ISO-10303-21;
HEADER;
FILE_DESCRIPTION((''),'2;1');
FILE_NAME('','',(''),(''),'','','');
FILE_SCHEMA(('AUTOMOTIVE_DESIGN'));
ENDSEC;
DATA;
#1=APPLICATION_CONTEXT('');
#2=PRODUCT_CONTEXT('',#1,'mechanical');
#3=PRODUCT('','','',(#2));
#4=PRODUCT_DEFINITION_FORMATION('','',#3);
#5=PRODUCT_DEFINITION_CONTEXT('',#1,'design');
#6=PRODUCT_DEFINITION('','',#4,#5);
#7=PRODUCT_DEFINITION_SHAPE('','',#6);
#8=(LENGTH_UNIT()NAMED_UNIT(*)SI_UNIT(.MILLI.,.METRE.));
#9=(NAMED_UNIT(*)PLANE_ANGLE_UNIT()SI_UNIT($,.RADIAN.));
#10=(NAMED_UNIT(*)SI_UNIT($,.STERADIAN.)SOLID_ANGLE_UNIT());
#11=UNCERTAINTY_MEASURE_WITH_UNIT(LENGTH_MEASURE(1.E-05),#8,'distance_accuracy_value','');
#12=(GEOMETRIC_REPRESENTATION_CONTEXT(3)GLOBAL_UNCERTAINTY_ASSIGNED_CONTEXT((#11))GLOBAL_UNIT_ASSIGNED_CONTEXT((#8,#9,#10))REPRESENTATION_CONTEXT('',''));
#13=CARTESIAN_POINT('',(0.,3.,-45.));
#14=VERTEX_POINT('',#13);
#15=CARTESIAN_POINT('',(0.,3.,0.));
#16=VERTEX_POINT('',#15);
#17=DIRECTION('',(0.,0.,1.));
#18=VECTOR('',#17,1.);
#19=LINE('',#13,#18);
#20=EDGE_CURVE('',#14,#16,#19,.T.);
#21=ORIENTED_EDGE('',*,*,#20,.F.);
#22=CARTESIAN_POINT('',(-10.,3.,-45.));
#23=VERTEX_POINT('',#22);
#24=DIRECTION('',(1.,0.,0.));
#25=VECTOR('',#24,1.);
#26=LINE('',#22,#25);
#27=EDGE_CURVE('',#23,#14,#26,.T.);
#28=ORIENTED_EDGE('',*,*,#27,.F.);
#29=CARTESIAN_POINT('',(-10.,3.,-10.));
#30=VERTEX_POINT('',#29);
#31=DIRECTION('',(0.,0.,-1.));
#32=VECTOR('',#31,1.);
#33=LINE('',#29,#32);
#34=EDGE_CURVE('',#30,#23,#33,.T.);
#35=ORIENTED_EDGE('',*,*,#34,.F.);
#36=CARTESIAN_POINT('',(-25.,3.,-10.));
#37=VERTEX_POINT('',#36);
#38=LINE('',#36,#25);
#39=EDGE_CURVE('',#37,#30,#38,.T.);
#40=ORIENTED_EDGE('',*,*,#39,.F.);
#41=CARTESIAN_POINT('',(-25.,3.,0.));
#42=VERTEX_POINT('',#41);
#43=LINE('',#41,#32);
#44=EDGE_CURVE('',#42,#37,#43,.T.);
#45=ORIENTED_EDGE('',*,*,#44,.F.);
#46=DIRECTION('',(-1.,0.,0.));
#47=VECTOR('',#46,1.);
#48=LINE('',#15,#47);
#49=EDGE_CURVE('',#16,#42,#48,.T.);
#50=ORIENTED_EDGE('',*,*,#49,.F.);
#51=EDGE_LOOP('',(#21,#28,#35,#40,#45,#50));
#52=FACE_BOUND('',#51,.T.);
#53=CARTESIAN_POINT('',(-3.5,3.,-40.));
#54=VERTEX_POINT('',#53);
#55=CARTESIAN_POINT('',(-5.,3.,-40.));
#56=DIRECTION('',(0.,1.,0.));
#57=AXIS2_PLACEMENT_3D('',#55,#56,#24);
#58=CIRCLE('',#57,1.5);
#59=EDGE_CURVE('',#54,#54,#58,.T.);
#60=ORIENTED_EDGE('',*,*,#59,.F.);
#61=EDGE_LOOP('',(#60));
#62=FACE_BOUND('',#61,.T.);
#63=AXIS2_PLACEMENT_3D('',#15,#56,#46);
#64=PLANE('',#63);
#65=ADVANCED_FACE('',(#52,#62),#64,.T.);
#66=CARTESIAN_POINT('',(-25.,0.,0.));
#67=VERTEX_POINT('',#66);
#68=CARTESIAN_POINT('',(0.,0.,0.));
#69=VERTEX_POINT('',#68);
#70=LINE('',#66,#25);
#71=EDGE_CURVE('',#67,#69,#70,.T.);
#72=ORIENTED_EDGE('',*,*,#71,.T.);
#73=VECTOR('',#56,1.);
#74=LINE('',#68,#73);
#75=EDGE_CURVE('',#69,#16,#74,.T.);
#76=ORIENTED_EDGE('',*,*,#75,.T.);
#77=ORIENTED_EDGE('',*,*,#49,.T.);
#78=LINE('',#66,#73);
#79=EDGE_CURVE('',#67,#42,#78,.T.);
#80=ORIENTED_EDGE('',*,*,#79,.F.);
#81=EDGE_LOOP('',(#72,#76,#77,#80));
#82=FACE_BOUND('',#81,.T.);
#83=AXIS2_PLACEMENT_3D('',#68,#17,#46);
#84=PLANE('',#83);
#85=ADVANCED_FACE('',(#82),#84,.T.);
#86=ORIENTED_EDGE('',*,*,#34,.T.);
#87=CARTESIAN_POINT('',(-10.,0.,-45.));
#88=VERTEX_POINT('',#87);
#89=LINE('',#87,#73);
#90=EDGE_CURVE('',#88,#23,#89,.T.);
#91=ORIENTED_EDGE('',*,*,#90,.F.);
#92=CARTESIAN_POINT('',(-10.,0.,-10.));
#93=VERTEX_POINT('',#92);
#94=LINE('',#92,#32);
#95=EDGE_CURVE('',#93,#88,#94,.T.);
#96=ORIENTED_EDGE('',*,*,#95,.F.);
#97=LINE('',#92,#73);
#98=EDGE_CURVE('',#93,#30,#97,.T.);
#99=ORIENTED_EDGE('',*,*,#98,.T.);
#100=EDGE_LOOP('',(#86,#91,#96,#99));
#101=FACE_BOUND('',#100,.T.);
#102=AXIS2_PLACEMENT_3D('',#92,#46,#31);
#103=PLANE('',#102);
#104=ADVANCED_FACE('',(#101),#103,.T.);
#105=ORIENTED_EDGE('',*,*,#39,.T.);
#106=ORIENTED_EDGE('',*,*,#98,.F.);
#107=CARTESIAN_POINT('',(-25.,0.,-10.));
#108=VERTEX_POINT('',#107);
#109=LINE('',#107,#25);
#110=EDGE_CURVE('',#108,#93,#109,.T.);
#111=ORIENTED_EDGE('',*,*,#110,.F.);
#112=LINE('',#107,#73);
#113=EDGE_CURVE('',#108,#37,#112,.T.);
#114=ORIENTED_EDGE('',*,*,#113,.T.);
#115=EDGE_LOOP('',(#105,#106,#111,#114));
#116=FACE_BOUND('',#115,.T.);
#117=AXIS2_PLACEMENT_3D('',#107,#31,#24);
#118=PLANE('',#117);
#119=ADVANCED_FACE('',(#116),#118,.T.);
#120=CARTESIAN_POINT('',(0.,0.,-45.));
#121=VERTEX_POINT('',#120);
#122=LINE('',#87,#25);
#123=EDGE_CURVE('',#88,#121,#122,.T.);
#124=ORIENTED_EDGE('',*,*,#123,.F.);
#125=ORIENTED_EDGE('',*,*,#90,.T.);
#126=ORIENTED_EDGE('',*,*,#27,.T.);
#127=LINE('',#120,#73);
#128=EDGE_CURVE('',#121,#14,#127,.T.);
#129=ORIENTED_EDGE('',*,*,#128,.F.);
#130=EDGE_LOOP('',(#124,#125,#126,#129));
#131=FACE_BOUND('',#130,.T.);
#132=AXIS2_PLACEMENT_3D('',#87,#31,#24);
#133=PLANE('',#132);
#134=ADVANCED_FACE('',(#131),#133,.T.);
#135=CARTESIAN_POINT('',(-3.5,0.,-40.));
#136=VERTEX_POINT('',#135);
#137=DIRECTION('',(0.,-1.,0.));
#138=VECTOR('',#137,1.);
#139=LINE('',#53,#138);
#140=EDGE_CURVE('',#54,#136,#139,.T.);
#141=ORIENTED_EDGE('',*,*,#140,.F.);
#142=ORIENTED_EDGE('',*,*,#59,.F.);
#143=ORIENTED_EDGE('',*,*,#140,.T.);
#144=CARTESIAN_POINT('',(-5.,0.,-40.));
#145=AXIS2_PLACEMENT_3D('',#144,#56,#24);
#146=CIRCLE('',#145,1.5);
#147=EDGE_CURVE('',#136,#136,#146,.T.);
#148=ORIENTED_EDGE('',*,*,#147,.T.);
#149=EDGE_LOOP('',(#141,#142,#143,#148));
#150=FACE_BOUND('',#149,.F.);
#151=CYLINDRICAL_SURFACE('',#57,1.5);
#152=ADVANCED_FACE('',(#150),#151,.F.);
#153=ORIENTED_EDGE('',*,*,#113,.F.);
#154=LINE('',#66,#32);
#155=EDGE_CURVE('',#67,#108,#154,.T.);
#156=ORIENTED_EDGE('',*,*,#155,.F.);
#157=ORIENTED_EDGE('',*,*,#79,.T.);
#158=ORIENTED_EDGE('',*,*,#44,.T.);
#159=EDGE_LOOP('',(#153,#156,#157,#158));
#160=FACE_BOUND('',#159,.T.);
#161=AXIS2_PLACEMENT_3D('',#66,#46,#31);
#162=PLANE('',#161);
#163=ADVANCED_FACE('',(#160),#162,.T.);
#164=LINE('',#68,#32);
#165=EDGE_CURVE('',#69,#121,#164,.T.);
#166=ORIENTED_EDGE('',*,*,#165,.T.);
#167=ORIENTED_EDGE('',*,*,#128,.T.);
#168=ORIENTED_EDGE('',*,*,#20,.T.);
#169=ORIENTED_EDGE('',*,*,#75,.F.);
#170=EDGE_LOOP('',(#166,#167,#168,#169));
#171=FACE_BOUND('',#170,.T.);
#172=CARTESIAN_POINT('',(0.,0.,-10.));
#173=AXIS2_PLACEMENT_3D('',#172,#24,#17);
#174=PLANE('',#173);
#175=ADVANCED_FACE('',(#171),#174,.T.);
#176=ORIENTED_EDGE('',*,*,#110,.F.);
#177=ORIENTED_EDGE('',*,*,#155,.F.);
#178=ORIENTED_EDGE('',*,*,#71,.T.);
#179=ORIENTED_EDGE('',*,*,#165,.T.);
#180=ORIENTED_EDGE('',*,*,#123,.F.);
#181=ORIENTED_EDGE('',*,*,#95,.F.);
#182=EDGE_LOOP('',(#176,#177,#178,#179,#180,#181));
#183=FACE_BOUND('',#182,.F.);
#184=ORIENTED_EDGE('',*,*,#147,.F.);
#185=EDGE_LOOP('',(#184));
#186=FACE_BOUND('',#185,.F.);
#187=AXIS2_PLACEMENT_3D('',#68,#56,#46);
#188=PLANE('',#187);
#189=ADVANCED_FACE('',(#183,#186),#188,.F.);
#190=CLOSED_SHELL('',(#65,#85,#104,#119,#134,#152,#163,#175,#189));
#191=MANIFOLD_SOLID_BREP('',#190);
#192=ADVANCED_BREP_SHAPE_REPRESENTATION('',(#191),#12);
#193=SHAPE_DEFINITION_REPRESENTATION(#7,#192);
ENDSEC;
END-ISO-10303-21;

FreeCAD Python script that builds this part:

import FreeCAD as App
import Part
import Sketcher
Q = App.Units.Quantity

doc = App.newDocument("Part")
body = doc.addObject("PartDesign::Body", "Body")

sketch1 = doc.addObject("Sketcher::SketchObject", "Sketch")
body.addObject(sketch1)
sketch1.AttachmentSupport = (doc.XZ_Plane, [""])
sketch1.MapMode = "FlatFace"
sketch1.addGeometry(Part.LineSegment(App.Vector(-25, 0, 0), App.Vector(0, 0, 0)), False)
sketch1.addGeometry(Part.LineSegment(App.Vector(0, 0, 0), App.Vector(0, -45, 0)), False)
sketch1.addGeometry(Part.LineSegment(App.Vector(0, -45, 0), App.Vector(-10, -45, 0)), False)
sketch1.addGeometry(Part.LineSegment(App.Vector(-10, -45, 0), App.Vector(-10, -10, 0)), False)
sketch1.addGeometry(Part.LineSegment(App.Vector(-10, -10, 0), App.Vector(-25, -10, 0)), False)
sketch1.addGeometry(Part.LineSegment(App.Vector(-25, -10, 0), App.Vector(-25, 0, 0)), False)
sketch1.addConstraint(Sketcher.Constraint("Coincident", 0, 2, 1, 1))
sketch1.addConstraint(Sketcher.Constraint("Coincident", 1, 2, 2, 1))
sketch1.addConstraint(Sketcher.Constraint("Coincident", 2, 2, 3, 1))
sketch1.addConstraint(Sketcher.Constraint("Coincident", 3, 2, 4, 1))
sketch1.addConstraint(Sketcher.Constraint("Coincident", 4, 2, 5, 1))
sketch1.addConstraint(Sketcher.Constraint("Coincident", 5, 2, 0, 1))
sketch1.addConstraint(Sketcher.Constraint("Horizontal", 0))
sketch1.addConstraint(Sketcher.Constraint("Vertical", 1))
sketch1.addConstraint(Sketcher.Constraint("Horizontal", 2))
sketch1.addConstraint(Sketcher.Constraint("Vertical", 3))
sketch1.addConstraint(Sketcher.Constraint("Horizontal", 4))
sketch1.addConstraint(Sketcher.Constraint("Vertical", 5))
sketch1.addConstraint(Sketcher.Constraint("Coincident", 0, 2, -1, 1))
sketch1.addConstraint(Sketcher.Constraint("Equal", 2, 5))
sketch1.addConstraint(Sketcher.Constraint("DistanceX", 0, 1, 0, 2, Q("25 mm")))
sketch1.addConstraint(Sketcher.Constraint("DistanceX", 2, 2, 2, 1, Q("10 mm")))
sketch1.addConstraint(Sketcher.Constraint("DistanceY", 1, 2, 1, 1, Q("45 mm")))
pad1 = doc.addObject("PartDesign::Pad", "Pad")
body.addObject(pad1)
pad1.Profile = sketch1
pad1.Length = 3
pad1.Reversed = True

sketch2 = doc.addObject("Sketcher::SketchObject", "Sketch001")
body.addObject(sketch2)
sketch2.AttachmentSupport = (doc.XZ_Plane, [""])
sketch2.MapMode = "FlatFace"
sketch2.AttachmentOffset = App.Placement(App.Vector(0, 0, -3), App.Rotation())
sketch2.addGeometry(Part.Circle(App.Vector(-5, -40, 0), App.Vector(0, 0, 1), 1.5), False)
sketch2.addConstraint(Sketcher.Constraint("Diameter", 0, Q("3 mm")))
sketch2.addConstraint(Sketcher.Constraint("DistanceX", 0, 3, -1, 1, Q("5 mm")))
sketch2.addConstraint(Sketcher.Constraint("DistanceY", 0, 3, -1, 1, Q("40 mm")))
pocket1 = doc.addObject("PartDesign::Pocket", "Pocket")
body.addObject(pocket1)
pocket1.Profile = sketch2
pocket1.Length = 10
pocket1.Reversed = True

doc.recompute()
